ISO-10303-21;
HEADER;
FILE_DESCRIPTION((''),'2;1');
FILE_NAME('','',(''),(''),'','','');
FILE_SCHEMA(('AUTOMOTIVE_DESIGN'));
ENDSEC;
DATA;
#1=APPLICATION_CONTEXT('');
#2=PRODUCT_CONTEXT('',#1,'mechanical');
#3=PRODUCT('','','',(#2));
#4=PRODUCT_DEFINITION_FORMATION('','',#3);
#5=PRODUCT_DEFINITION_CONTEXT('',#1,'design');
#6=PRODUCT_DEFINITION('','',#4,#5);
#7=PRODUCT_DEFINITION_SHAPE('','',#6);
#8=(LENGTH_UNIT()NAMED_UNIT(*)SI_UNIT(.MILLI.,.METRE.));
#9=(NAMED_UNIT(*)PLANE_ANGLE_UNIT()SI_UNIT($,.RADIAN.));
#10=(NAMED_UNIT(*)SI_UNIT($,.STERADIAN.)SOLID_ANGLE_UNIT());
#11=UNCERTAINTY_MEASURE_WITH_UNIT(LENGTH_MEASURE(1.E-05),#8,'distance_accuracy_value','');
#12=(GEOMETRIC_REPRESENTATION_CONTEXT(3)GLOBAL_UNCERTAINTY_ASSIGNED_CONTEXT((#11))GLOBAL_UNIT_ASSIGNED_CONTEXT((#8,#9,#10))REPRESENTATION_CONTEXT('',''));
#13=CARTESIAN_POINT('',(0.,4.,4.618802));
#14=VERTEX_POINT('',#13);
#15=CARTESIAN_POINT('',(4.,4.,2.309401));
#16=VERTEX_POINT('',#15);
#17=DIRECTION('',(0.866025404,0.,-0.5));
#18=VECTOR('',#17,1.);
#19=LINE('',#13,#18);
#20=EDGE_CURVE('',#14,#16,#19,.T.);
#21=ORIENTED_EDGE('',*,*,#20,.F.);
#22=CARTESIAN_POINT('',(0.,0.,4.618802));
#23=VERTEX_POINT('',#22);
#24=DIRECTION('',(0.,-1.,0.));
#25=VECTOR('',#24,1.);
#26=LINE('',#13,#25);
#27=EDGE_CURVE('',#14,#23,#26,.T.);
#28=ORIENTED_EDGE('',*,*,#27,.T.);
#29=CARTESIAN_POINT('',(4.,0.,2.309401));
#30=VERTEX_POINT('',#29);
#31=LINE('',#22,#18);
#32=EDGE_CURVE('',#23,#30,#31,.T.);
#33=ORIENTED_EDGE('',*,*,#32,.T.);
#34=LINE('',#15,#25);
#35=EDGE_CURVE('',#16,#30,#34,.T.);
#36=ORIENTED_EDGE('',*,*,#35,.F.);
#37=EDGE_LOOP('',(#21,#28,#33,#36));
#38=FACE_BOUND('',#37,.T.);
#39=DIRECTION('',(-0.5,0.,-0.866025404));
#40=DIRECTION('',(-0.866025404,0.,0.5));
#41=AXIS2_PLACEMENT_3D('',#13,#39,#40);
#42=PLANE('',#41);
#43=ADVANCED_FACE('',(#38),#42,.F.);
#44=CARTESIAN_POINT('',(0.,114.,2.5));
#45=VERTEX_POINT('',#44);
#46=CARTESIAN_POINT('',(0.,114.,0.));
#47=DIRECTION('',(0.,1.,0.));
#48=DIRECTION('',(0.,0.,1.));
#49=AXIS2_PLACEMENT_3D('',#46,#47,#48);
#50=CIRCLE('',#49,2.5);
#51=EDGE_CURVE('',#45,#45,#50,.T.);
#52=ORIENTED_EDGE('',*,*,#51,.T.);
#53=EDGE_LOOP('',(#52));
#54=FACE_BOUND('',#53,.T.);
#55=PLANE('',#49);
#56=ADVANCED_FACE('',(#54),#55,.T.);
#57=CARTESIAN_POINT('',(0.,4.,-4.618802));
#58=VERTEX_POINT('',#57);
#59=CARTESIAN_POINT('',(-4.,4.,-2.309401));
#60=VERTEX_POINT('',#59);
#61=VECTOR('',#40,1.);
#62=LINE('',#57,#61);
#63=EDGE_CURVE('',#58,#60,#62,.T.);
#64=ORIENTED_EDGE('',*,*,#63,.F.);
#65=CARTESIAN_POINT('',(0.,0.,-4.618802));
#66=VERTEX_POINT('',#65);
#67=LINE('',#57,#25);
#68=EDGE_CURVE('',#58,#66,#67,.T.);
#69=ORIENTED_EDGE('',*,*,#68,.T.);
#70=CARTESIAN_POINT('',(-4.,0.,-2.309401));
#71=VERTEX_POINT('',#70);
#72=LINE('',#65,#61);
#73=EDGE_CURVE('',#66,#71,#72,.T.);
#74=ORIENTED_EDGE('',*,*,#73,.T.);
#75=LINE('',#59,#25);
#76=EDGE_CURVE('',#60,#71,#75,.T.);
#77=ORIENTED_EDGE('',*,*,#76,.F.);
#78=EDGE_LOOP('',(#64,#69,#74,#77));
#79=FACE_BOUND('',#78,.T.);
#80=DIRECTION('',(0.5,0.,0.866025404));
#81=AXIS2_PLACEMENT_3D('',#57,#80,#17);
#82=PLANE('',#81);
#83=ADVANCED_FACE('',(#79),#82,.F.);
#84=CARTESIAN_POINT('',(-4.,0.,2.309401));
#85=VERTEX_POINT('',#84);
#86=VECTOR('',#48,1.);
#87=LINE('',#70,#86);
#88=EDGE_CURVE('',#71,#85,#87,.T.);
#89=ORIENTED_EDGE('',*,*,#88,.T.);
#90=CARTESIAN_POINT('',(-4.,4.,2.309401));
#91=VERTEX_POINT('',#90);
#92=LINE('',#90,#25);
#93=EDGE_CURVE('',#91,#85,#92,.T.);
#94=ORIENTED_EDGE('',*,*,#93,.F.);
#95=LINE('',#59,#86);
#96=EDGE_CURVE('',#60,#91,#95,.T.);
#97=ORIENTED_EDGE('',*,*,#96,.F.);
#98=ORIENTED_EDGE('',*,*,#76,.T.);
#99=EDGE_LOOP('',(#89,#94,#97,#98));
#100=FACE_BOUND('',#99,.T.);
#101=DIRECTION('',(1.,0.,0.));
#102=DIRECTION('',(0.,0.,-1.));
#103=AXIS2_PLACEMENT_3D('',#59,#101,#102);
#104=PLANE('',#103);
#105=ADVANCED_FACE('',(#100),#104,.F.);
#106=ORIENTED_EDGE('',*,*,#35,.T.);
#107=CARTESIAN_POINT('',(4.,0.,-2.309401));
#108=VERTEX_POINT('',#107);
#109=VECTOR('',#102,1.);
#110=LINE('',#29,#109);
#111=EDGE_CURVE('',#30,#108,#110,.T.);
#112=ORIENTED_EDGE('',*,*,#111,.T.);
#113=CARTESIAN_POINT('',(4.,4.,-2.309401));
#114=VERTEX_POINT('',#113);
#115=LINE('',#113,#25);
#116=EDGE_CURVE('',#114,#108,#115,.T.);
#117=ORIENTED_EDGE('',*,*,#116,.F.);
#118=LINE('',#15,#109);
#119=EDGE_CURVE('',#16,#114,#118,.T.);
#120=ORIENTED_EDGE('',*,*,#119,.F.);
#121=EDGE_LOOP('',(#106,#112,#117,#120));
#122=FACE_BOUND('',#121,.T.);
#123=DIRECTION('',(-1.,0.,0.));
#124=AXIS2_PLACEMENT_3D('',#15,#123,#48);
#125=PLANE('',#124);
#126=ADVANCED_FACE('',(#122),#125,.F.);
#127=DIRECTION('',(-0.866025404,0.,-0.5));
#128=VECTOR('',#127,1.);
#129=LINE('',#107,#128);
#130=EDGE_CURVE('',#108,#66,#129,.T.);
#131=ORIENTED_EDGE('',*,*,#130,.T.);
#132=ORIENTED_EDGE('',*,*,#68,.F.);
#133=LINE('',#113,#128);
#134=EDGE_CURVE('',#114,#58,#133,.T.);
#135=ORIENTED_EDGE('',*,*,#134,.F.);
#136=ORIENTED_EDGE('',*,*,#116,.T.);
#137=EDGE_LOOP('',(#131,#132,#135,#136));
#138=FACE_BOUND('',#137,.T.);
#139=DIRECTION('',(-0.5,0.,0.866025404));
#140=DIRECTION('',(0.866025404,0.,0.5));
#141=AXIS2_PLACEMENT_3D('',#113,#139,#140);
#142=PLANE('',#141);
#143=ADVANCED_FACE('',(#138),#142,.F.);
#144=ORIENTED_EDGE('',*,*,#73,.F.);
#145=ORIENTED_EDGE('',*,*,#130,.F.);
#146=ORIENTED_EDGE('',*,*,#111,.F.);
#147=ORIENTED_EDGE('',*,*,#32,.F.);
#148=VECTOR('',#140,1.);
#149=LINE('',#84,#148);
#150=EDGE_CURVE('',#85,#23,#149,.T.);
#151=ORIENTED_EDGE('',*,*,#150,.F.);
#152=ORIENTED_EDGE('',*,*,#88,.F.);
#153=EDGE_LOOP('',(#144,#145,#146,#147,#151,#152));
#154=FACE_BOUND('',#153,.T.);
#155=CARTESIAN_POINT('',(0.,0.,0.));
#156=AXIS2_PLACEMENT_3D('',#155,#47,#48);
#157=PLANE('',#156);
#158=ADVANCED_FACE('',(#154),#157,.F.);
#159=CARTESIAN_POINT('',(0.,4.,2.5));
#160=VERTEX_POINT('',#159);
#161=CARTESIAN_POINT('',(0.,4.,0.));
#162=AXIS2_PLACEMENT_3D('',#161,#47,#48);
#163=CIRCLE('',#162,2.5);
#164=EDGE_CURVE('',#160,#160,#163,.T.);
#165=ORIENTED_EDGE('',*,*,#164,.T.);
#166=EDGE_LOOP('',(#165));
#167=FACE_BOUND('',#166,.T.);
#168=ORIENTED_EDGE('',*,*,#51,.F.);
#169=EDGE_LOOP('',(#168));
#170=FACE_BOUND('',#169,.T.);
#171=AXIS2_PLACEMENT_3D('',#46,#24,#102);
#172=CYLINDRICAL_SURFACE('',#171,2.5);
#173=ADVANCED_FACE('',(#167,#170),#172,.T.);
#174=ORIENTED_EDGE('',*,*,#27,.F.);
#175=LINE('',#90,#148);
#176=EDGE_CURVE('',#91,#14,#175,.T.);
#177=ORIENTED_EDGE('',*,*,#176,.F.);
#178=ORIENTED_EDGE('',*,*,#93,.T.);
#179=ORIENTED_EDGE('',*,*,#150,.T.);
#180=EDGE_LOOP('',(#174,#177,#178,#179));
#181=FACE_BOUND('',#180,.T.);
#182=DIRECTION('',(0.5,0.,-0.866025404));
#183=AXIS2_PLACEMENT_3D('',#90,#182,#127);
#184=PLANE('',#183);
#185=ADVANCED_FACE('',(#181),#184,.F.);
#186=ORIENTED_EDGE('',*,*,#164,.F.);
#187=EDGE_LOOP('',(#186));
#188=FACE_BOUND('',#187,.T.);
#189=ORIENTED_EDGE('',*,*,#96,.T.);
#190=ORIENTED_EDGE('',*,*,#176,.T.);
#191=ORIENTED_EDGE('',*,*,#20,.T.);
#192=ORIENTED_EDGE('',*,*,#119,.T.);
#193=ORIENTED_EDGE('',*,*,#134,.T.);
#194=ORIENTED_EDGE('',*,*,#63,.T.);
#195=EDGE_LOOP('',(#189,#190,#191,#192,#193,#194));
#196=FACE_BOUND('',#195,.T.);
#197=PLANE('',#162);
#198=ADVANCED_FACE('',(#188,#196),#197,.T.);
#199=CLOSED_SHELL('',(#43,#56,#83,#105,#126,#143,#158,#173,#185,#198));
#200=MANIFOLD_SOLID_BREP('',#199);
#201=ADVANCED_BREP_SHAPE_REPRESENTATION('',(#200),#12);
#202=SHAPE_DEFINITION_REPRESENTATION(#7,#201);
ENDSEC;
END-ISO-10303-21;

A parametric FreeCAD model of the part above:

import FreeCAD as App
import Part
import Sketcher

V = App.Vector
Q = App.Units.Quantity

doc = App.newDocument("Part")
body = doc.addObject("PartDesign::Body", "Body")

# Sketch on XZ plane
sketch1 = body.newObject("Sketcher::SketchObject", "Sketch")
sketch1.AttachmentSupport = (doc.getObject("XZ_Plane"), [""])
sketch1.MapMode = "FlatFace"
sketch1.addGeometry([
    Part.LineSegment(V(4, 2.309401, 0), V(4, -2.309401, 0)),  # 0
    Part.LineSegment(V(4, -2.309401, 0), V(0, -4.618802, 0)),  # 1
    Part.LineSegment(V(0, -4.618802, 0), V(-4, -2.309401, 0)),  # 2
    Part.LineSegment(V(-4, -2.309401, 0), V(-4, 2.309401, 0)),  # 3
    Part.LineSegment(V(-4, 2.309401, 0), V(0, 4.618802, 0)),  # 4
    Part.LineSegment(V(0, 4.618802, 0), V(4, 2.309401, 0)),  # 5
], False)
sketch1.addConstraint([
    Sketcher.Constraint("Coincident", 0, 2, 1, 1),
    Sketcher.Constraint("Coincident", 1, 2, 2, 1),
    Sketcher.Constraint("Coincident", 2, 2, 3, 1),
    Sketcher.Constraint("Coincident", 3, 2, 4, 1),
    Sketcher.Constraint("Coincident", 4, 2, 5, 1),
    Sketcher.Constraint("Coincident", 5, 2, 0, 1),
    Sketcher.Constraint("Vertical", 0),
    Sketcher.Constraint("Vertical", 3),
    Sketcher.Constraint("Symmetric", 0, 2, 3, 2, -1, 1),
    Sketcher.Constraint("Symmetric", 1, 2, 4, 2, -1, 1),
    Sketcher.Constraint("PointOnObject", 1, 2, -2),
    Sketcher.Constraint("Parallel", 2, 5),
    Sketcher.Constraint("Horizontal", 0, 2, 2, 2),
    Sketcher.Constraint("Angle", 1, Q("-150 deg")),
    Sketcher.Constraint("DistanceX", -1, 1, 0, 2, Q("4 mm")),
    Sketcher.Constraint("DistanceY", 0, 2, -1, 1, Q("2.309401 mm")),
])
pad1 = body.newObject("PartDesign::Pad", "Pad")
pad1.Profile = sketch1
pad1.Length = 4
pad1.Reversed = True

# Sketch on XZ plane
sketch2 = body.newObject("Sketcher::SketchObject", "Sketch001")
sketch2.AttachmentSupport = (doc.getObject("XZ_Plane"), [""])
sketch2.MapMode = "FlatFace"
sketch2.AttachmentOffset = App.Placement(V(0, 0, -4), App.Rotation())
sketch2.addGeometry(Part.Circle(V(0, 0, 0), V(0, 0, 1), 2.5), False)
sketch2.addConstraint([
    Sketcher.Constraint("Coincident", 0, 3, -1, 1),
    Sketcher.Constraint("Diameter", 0, Q("5 mm")),
])
pad2 = body.newObject("PartDesign::Pad", "Pad001")
pad2.Profile = sketch2
pad2.Length = 110
pad2.Reversed = True

doc.recompute()
